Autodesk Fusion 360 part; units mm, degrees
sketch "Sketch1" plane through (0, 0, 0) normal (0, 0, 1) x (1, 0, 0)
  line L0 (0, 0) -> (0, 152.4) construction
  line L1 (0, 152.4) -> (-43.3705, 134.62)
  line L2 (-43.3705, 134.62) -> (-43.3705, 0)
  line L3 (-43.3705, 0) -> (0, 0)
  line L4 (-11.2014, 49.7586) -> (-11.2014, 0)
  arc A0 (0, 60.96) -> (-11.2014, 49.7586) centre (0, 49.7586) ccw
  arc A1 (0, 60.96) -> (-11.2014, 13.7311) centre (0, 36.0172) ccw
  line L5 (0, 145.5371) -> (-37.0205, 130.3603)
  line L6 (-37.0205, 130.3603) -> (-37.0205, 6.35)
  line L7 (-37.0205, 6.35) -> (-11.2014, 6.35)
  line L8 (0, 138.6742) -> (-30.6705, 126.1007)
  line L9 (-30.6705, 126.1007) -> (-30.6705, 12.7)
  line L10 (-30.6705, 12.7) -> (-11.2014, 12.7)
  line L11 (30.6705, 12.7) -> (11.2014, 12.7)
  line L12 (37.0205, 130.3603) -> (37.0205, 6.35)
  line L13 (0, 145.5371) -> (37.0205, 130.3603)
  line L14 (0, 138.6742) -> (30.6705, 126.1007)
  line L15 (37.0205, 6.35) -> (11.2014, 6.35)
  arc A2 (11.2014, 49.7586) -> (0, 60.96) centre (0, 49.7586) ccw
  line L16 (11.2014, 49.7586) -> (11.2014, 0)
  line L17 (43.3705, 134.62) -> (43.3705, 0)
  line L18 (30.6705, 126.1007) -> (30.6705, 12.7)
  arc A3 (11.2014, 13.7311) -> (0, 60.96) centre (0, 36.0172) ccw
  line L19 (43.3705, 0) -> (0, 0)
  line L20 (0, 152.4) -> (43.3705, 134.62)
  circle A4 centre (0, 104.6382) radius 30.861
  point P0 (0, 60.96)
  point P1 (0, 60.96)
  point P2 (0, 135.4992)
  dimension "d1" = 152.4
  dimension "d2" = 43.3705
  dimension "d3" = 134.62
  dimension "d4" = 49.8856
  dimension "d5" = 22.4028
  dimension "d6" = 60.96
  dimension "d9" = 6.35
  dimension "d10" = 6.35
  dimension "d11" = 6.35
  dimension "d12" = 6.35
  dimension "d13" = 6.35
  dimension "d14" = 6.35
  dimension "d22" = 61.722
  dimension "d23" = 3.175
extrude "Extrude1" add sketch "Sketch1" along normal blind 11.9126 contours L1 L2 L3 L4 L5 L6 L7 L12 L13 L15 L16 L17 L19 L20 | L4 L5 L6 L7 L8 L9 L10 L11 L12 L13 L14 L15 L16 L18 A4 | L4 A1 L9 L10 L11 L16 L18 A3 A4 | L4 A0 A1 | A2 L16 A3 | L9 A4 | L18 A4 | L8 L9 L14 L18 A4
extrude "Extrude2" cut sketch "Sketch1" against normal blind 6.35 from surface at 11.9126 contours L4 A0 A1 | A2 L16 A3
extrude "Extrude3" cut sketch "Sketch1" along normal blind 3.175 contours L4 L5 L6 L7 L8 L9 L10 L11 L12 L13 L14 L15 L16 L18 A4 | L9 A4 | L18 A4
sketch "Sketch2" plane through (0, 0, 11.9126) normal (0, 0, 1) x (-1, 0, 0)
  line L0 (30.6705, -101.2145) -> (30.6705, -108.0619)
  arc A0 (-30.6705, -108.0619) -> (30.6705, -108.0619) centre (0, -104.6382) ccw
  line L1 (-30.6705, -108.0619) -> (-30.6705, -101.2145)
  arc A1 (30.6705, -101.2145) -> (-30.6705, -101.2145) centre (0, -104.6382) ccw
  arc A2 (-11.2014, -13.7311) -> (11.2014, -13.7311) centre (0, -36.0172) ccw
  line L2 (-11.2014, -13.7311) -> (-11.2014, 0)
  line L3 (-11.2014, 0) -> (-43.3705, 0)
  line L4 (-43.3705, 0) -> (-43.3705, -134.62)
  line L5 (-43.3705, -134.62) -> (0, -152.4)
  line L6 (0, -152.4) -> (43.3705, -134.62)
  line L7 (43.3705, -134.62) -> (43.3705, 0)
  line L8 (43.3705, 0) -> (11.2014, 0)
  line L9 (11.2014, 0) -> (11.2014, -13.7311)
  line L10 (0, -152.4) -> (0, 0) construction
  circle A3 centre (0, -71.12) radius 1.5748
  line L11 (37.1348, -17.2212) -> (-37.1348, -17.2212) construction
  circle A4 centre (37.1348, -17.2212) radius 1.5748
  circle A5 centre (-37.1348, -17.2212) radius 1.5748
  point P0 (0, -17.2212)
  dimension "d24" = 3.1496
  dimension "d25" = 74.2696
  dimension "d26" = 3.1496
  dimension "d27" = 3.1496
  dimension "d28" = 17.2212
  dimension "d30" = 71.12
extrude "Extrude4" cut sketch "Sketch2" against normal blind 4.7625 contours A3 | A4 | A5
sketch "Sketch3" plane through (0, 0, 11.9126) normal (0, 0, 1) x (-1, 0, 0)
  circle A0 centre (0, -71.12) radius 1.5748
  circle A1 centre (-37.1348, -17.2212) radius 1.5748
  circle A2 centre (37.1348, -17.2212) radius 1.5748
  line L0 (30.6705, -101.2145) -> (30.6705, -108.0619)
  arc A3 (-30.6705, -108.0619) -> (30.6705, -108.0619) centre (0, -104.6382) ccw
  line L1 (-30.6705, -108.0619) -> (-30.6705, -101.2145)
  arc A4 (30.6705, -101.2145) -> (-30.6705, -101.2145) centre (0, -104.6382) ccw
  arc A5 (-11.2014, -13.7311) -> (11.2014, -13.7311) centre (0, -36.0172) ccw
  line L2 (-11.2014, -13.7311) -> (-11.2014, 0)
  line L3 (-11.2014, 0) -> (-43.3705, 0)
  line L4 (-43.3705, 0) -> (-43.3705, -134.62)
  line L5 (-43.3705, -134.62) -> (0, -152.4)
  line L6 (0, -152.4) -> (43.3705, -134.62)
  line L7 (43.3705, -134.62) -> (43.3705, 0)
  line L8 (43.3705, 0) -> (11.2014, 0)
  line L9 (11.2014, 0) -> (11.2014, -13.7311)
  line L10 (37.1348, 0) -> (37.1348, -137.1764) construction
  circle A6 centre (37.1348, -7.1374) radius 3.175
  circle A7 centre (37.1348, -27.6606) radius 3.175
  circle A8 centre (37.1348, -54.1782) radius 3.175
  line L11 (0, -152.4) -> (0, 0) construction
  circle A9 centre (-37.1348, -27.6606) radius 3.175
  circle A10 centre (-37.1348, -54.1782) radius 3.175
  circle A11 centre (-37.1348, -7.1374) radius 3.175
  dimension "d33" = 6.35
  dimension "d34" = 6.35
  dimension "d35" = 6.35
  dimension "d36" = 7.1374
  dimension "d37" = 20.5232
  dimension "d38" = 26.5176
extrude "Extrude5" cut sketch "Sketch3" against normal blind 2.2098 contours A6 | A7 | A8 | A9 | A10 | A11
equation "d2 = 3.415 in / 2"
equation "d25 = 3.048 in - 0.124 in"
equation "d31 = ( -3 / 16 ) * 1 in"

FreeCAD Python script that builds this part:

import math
import FreeCAD as App
import Part
import Sketcher
from FreeCAD import Vector
Q = App.Units.Quantity


def add_polygon(sketch, points):
    """Adds a closed chain of lines whose ends are joined by coincident constraints."""
    first, n = sketch.GeometryCount, len(points)
    for a, b in zip(points, points[1:] + points[:1]):
        sketch.addGeometry(Part.LineSegment(App.Vector(*a, 0), App.Vector(*b, 0)), False)
    for i in range(n):
        sketch.addConstraint(Sketcher.Constraint("Coincident", first + i, 2, first + (i + 1) % n, 1))

doc = App.newDocument("Part")
body = doc.addObject("PartDesign::Body", "Body")

# Sketch on XY plane
sketch1 = body.newObject("Sketcher::SketchObject", "Sketch")
sketch1.AttachmentSupport = (doc.getObject("XY_Plane"), [""])
sketch1.MapMode = "FlatFace"
sketch1.addGeometry([
    Part.LineSegment(Vector(43.3705, 134.62, 0), Vector(0, 152.4, 0)),  # 0
    Part.LineSegment(Vector(0, 152.4, 0), Vector(-43.3705, 134.62, 0)),  # 1
    Part.LineSegment(Vector(-43.3705, 134.62, 0), Vector(-43.3705, 0, 0)),  # 2
    Part.LineSegment(Vector(-43.3705, 0, 0), Vector(-11.2014, 0, 0)),  # 3
    Part.LineSegment(Vector(-11.2014, 0, 0), Vector(-11.2014, 49.7586, 0)),  # 4
    Part.ArcOfCircle(Part.Circle(Vector(0, 49.7586, 0), Vector(0, 0, 1), 11.2014), math.radians(0), math.radians(180)),  # 5
    Part.LineSegment(Vector(11.2014, 49.7586, 0), Vector(11.2014, 0, 0)),  # 6
    Part.LineSegment(Vector(11.2014, 0, 0), Vector(43.3705, 0, 0)),  # 7
    Part.LineSegment(Vector(43.3705, 0, 0), Vector(43.3705, 134.62, 0)),  # 8
    Part.ArcOfCircle(Part.Circle(Vector(0, 104.6382, 0), Vector(0, 0, 1), 30.861), math.radians(6.369477), math.radians(173.630523)),  # 9
    Part.LineSegment(Vector(30.6705, 108.061904, 0), Vector(30.6705, 101.214496, 0)),  # 10
    Part.ArcOfCircle(Part.Circle(Vector(0, 104.6382, 0), Vector(0, 0, 1), 30.861), math.radians(-173.630523), math.radians(-6.369477)),  # 11
    Part.LineSegment(Vector(-30.6705, 101.214496, 0), Vector(-30.6705, 108.061904, 0)),  # 12
], False)
sketch1.addConstraint([
    Sketcher.Constraint("Coincident", 0, 2, 1, 1),
    Sketcher.Constraint("Coincident", 1, 2, 2, 1),
    Sketcher.Constraint("Coincident", 2, 2, 3, 1),
    Sketcher.Constraint("Coincident", 3, 2, 4, 1),
    Sketcher.Constraint("Tangent", 4, 2, 5, 2),
    Sketcher.Constraint("Tangent", 5, 1, 6, 1),
    Sketcher.Constraint("Coincident", 6, 2, 7, 1),
    Sketcher.Constraint("Coincident", 7, 2, 8, 1),
    Sketcher.Constraint("Coincident", 8, 2, 0, 1),
    Sketcher.Constraint("Coincident", 9, 1, 10, 1),
    Sketcher.Constraint("Coincident", 10, 2, 11, 2),
    Sketcher.Constraint("Coincident", 11, 1, 12, 1),
    Sketcher.Constraint("Coincident", 12, 2, 9, 2),
    Sketcher.Constraint("Vertical", 2),
    Sketcher.Constraint("Horizontal", 3),
    Sketcher.Constraint("Vertical", 4),
    Sketcher.Constraint("Vertical", 6),
    Sketcher.Constraint("Horizontal", 7),
    Sketcher.Constraint("Vertical", 8),
    Sketcher.Constraint("Vertical", 10),
    Sketcher.Constraint("Vertical", 12),
    Sketcher.Constraint("Coincident", 11, 3, 9, 3),
    Sketcher.Constraint("Equal", 9, 11),
    Sketcher.Constraint("Symmetric", 3, 2, 6, 2, -1, 1),
    Sketcher.Constraint("Symmetric", 2, 2, 7, 2, -2),
    Sketcher.Constraint("Symmetric", 10, 2, 11, 1, -2),
    Sketcher.Constraint("PointOnObject", 0, 2, -2),
    Sketcher.Constraint("Horizontal", 1, 2, 8, 2),
    Sketcher.Constraint("DistanceY", 2, 2, 2, 1, Q("5.3 in")),
    Sketcher.Constraint("DistanceY", -1, 1, 0, 2, Q("6 in")),
    Sketcher.Constraint("Radius", 5, Q("0.441 in")),
    Sketcher.Constraint("Radius", 9, Q("1.215 in")),
    Sketcher.Constraint("DistanceX", 1, 2, -1, 1, Q("1.7075 in")),
    Sketcher.Constraint("DistanceX", 9, 1, 8, 2, Q("0.5 in")),
    Sketcher.Constraint("DistanceY", 4, 1, 4, 2, Q("1.959 in")),
    Sketcher.Constraint("DistanceY", -1, 1, 9, 1, Q("4.2544 in")),
])
pad1 = body.newObject("PartDesign::Pad", "Pad")
pad1.Profile = sketch1
pad1.Length = Q("0.469 in")

# Sketch on XY plane
sketch2 = body.newObject("Sketcher::SketchObject", "Sketch001")
sketch2.AttachmentSupport = (doc.getObject("XY_Plane"), [""])
sketch2.MapMode = "FlatFace"
sketch2.AttachmentOffset = App.Placement(Vector(0, 0, 0.469 * 25.4), App.Rotation())
sketch2.addGeometry([
    Part.ArcOfCircle(Part.Circle(Vector(0, 36.0172, 0), Vector(0, 0, 1), 24.942767), math.radians(90), math.radians(243.315064)),  # 0
    Part.LineSegment(Vector(-11.2014, 13.7311, 0), Vector(-11.2014, 49.7586, 0)),  # 1
    Part.ArcOfCircle(Part.Circle(Vector(0, 49.7586, 0), Vector(0, 0, 1), 11.2014), math.radians(90), math.radians(180)),  # 2
    Part.LineSegment(Vector(11.2014, 49.7586, 0), Vector(11.2014, 13.7311, 0)),  # 3
    Part.ArcOfCircle(Part.Circle(Vector(0, 36.0172, 0), Vector(0, 0, 1), 24.9428), math.radians(-63.315064), math.radians(90)),  # 4
    Part.ArcOfCircle(Part.Circle(Vector(0, 49.7586, 0), Vector(0, 0, 1), 11.2014), math.radians(0), math.radians(90)),  # 5
], False)
sketch2.addConstraint([
    Sketcher.Constraint("Coincident", 0, 2, 1, 1),
    Sketcher.Constraint("Tangent", 1, 2, 2, 2),
    Sketcher.Constraint("Tangent", 2, 1, 0, 1),
    Sketcher.Constraint("Coincident", 3, 2, 4, 1),
    Sketcher.Constraint("Tangent", 4, 2, 5, 2),
    Sketcher.Constraint("Tangent", 5, 1, 3, 1),
    Sketcher.Constraint("Vertical", 1),
    Sketcher.Constraint("Vertical", 3),
    Sketcher.Constraint("Coincident", 4, 3, 0, 3),
    Sketcher.Constraint("Coincident", 5, 3, 2, 3),
    Sketcher.Constraint("Equal", 0, 4),
    Sketcher.Constraint("Symmetric", 0, 2, 3, 2, -2),
    Sketcher.Constraint("Radius", 0, Q("0.982 in")),
    Sketcher.Constraint("Radius", 2, Q("0.441 in")),
    Sketcher.Constraint("DistanceY", -1, 1, 2, 1, Q("2.4 in")),
])
pocket1 = body.newObject("PartDesign::Pocket", "Pocket")
pocket1.Profile = sketch2
pocket1.Length = Q("0.25 in")

# Sketch on XY plane
sketch3 = body.newObject("Sketcher::SketchObject", "Sketch002")
sketch3.AttachmentSupport = (doc.getObject("XY_Plane"), [""])
sketch3.MapMode = "FlatFace"
add_polygon(sketch3, [(-37.0205, 6.35), (-11.2014, 6.35), (-11.2014, 12.7), (-30.6705, 12.7), (-30.6705, 126.1007), (0, 138.6742), (30.6705, 126.1007), (30.6705, 12.7), (11.2014, 12.7), (11.2014, 6.35), (37.0205, 6.35), (37.0205, 130.3603), (0, 145.5371), (-37.0205, 130.3603)])  # lines 0-13
sketch3.addConstraint([
    Sketcher.Constraint("Horizontal", 0),
    Sketcher.Constraint("Vertical", 1),
    Sketcher.Constraint("Horizontal", 2),
    Sketcher.Constraint("Vertical", 3),
    Sketcher.Constraint("Vertical", 6),
    Sketcher.Constraint("Horizontal", 7),
    Sketcher.Constraint("Vertical", 8),
    Sketcher.Constraint("Horizontal", 9),
    Sketcher.Constraint("Vertical", 10),
    Sketcher.Constraint("Vertical", 13),
    Sketcher.Constraint("Symmetric", 3, 2, 5, 2, -2),
    Sketcher.Constraint("Symmetric", 1, 2, 7, 2, -2),
    Sketcher.Constraint("Symmetric", 10, 2, 12, 2, -2),
    Sketcher.Constraint("PointOnObject", 4, 2, -2),
    Sketcher.Constraint("PointOnObject", 11, 2, -2),
    Sketcher.Constraint("Parallel", 5, 11),
    Sketcher.Constraint("Horizontal", 0, 2, 8, 2),
    Sketcher.Constraint("DistanceY", 1, 1, 1, 2, Q("0.25 in")),
    Sketcher.Constraint("DistanceY", -1, 1, 0, 2, Q("0.25 in")),
    Sketcher.Constraint("DistanceX", 6, 2, 9, 2, Q("0.25 in")),
    Sketcher.Constraint("DistanceX", 1, 2, 7, 2, Q("0.882 in")),
    Sketcher.Constraint("DistanceX", 0, 1, 0, 2, Q("1.0165 in")),
    Sketcher.Constraint("DistanceY", 3, 1, 3, 2, Q("4.4646 in")),
    Sketcher.Constraint("DistanceY", 10, 1, 10, 2, Q("4.8823 in")),
    Sketcher.Constraint("DistanceY", -1, 1, 11, 2, Q("5.7298 in")),
])
pocket2 = body.newObject("PartDesign::Pocket", "Pocket001")
pocket2.Profile = sketch3
pocket2.Length = Q("0.125 in")
pocket2.Reversed = True

# Sketch on XY plane
sketch4 = body.newObject("Sketcher::SketchObject", "Sketch003")
sketch4.AttachmentSupport = (doc.getObject("XY_Plane"), [""])
sketch4.MapMode = "FlatFace"
sketch4.AttachmentOffset = App.Placement(Vector(0, 0, 0.469 * 25.4), App.Rotation())
sketch4.addGeometry([
    Part.Circle(Vector(0, 71.12, 0), Vector(0, 0, 1), 1.5748),
    Part.Circle(Vector(-37.1348, 17.2212, 0), Vector(0, 0, 1), 1.5748),
    Part.Circle(Vector(37.1348, 17.2212, 0), Vector(0, 0, 1), 1.5748),
], False)
sketch4.addConstraint([
    Sketcher.Constraint("Equal", 0, 1),
    Sketcher.Constraint("Equal", 1, 2),
    Sketcher.Constraint("Symmetric", 1, 3, 2, 3, -2),
    Sketcher.Constraint("PointOnObject", 0, 3, -2),
    Sketcher.Constraint("Diameter", 0, Q("0.124 in")),
    Sketcher.Constraint("DistanceY", -1, 1, 0, 3, Q("2.8 in")),
    Sketcher.Constraint("DistanceY", -1, 1, 1, 3, Q("0.678 in")),
    Sketcher.Constraint("DistanceX", 1, 3, 2, 3, Q("2.924 in")),
])
pocket3 = body.newObject("PartDesign::Pocket", "Pocket002")
pocket3.Profile = sketch4
pocket3.Length = Q("0.1875 in")

# Sketch on XY plane
sketch5 = body.newObject("Sketcher::SketchObject", "Sketch004")
sketch5.AttachmentSupport = (doc.getObject("XY_Plane"), [""])
sketch5.MapMode = "FlatFace"
sketch5.AttachmentOffset = App.Placement(Vector(0, 0, 0.469 * 25.4), App.Rotation())
sketch5.addGeometry([
    Part.Circle(Vector(-37.1348, 7.1374, 0), Vector(0, 0, 1), 3.175),  # 0
    Part.Circle(Vector(-37.1348, 27.6606, 0), Vector(0, 0, 1), 3.175),  # 1
    Part.Circle(Vector(-37.1348, 54.1782, 0), Vector(0, 0, 1), 3.175),  # 2
    Part.Circle(Vector(37.1348, 27.6606, 0), Vector(0, 0, 1), 3.175),  # 3
    Part.Circle(Vector(37.1348, 54.1782, 0), Vector(0, 0, 1), 3.175),  # 4
    Part.Circle(Vector(37.1348, 7.1374, 0), Vector(0, 0, 1), 3.175),  # 5
], False)
sketch5.addConstraint([
    Sketcher.Constraint("Equal", 0, 1),
    Sketcher.Constraint("Equal", 1, 2),
    Sketcher.Constraint("Equal", 2, 3),
    Sketcher.Constraint("Equal", 3, 4),
    Sketcher.Constraint("Equal", 4, 5),
    Sketcher.Constraint("Symmetric", 1, 3, 3, 3, -2),
    Sketcher.Constraint("Symmetric", 2, 3, 4, 3, -2),
    Sketcher.Constraint("Symmetric", 0, 3, 5, 3, -2),
    Sketcher.Constraint("Vertical", 0, 3, 1, 3),
    Sketcher.Constraint("Vertical", 1, 3, 2, 3),
    Sketcher.Constraint("Diameter", 0, Q("0.25 in")),
    Sketcher.Constraint("DistanceY", -1, 1, 0, 3, Q("0.281 in")),
    Sketcher.Constraint("DistanceY", 0, 3, 1, 3, Q("0.808 in")),
    Sketcher.Constraint("DistanceY", 1, 3, 2, 3, Q("1.044 in")),
    Sketcher.Constraint("DistanceX", 0, 3, -1, 1, Q("1.462 in")),
])
pocket4 = body.newObject("PartDesign::Pocket", "Pocket003")
pocket4.Profile = sketch5
pocket4.Length = Q("0.087 in")

doc.recompute()
